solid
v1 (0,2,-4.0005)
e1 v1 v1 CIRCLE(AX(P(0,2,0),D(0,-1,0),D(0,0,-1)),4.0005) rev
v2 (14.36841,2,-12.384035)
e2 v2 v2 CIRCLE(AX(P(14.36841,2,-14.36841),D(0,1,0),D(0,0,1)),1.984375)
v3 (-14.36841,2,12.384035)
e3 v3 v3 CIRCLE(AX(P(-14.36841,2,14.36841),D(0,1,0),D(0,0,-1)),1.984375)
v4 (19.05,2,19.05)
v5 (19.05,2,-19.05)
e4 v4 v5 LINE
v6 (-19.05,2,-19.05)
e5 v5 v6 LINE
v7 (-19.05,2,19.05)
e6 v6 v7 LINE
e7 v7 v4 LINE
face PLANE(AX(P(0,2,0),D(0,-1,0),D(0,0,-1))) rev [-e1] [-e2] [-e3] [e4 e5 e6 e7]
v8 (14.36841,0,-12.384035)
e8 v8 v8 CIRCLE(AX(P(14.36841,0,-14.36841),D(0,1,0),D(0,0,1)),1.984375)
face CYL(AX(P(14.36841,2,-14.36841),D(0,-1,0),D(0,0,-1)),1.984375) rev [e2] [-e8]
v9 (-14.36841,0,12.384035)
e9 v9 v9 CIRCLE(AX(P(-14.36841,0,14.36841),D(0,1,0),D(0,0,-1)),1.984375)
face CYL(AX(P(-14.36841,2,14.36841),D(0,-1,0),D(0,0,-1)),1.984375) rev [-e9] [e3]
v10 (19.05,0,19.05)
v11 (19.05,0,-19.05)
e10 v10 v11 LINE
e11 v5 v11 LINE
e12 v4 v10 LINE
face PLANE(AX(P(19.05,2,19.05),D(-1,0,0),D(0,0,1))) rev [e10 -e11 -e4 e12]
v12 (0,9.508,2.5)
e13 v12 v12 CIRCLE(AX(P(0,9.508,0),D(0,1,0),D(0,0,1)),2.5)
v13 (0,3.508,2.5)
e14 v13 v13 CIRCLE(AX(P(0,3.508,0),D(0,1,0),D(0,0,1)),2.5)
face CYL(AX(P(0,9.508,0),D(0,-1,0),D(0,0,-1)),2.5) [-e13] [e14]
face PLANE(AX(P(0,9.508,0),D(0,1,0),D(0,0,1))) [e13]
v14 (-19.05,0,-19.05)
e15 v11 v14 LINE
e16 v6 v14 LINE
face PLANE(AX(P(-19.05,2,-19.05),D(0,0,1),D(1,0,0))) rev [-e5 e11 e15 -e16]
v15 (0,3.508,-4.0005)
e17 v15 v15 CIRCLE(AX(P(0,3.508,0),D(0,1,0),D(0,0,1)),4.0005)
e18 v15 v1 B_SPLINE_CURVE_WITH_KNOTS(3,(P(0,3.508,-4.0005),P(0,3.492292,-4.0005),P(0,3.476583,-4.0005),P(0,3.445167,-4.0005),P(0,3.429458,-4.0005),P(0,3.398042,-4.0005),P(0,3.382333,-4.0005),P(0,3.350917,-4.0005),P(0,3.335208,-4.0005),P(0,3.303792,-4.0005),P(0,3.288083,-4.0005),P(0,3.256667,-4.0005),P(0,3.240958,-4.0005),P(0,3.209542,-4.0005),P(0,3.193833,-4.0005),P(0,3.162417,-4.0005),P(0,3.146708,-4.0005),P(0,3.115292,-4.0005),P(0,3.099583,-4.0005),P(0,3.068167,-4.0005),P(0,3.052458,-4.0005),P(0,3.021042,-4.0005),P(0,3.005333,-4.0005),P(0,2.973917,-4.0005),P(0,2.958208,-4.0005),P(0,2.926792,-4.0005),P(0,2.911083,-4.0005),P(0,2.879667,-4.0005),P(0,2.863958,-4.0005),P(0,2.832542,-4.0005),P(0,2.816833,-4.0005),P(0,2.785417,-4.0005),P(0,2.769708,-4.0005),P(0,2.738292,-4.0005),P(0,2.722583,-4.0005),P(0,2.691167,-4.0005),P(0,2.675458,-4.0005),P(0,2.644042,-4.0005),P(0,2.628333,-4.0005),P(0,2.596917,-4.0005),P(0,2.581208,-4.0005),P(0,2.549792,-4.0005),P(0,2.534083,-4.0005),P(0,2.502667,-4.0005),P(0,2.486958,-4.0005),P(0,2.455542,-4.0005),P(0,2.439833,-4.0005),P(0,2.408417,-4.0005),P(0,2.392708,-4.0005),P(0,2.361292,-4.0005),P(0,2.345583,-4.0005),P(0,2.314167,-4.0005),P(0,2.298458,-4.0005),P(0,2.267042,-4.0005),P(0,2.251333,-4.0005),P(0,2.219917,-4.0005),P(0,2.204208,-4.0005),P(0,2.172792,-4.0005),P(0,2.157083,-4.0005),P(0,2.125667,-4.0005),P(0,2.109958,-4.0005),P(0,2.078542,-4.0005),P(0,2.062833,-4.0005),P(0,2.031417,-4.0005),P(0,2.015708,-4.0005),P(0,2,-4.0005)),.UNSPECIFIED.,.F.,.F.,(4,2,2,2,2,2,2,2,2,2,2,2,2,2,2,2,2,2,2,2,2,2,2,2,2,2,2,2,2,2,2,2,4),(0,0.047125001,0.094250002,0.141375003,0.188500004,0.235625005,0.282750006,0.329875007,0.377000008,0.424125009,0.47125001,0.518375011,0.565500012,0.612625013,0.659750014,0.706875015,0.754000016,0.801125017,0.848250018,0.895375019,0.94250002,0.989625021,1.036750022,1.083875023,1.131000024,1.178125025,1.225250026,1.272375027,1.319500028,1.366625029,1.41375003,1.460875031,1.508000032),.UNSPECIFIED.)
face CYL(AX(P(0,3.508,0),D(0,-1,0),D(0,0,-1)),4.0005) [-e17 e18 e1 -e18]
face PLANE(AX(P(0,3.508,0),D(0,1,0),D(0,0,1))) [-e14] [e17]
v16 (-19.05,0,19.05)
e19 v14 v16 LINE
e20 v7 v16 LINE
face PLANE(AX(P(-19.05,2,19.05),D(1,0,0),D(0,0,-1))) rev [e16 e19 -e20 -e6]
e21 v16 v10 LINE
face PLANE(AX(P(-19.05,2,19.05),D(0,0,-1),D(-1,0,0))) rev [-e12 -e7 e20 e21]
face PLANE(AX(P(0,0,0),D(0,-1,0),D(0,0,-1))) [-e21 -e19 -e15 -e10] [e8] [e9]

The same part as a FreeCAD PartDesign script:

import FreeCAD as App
import Part
import Sketcher

V = App.Vector


def add_polygon(sketch, points):
    """Adds a closed chain of lines whose ends are joined by coincident constraints."""
    first, n = sketch.GeometryCount, len(points)
    for a, b in zip(points, points[1:] + points[:1]):
        sketch.addGeometry(Part.LineSegment(App.Vector(*a, 0), App.Vector(*b, 0)), False)
    for i in range(n):
        sketch.addConstraint(Sketcher.Constraint("Coincident", first + i, 2, first + (i + 1) % n, 1))

doc = App.newDocument("Part")
params = doc.addObject("Spreadsheet::Sheet", "Params")
for row, (alias, value) in enumerate([
    ("sketch1_width", "38.1 mm"),
    ("pad1_length", "2 mm"),
    ("pad2_length", "1.508 mm"),
    ("sketch3_diameter", "5 mm"),
    ("pad3_length", "6 mm"),
], start=1):
    params.set(f"A{row}", alias)
    params.set(f"B{row}", "=" + value)
    params.setAlias(f"B{row}", alias)

body = doc.addObject("PartDesign::Body", "Body")

sketch1 = body.newObject("Sketcher::SketchObject", "Sketch")
sketch1.AttachmentSupport = (doc.getObject("XZ_Plane"), [""])
sketch1.MapMode = "FlatFace"
add_polygon(sketch1, [(-19.1, -19.1), (-19.1, 19.1), (19.1, 19.1), (19.1, -19.1)])
sketch1.addGeometry(Part.Circle(V(-14.4, 14.4, 0), V(0, 0, 1), 2), False)
sketch1.addGeometry(Part.Circle(V(14.4, -14.4, 0), V(0, 0, 1), 2), False)
sketch1.addConstraint([
    Sketcher.Constraint("Vertical", 0),
    Sketcher.Constraint("Horizontal", 1),
    Sketcher.Constraint("Vertical", 2),
    Sketcher.Constraint("Horizontal", 3),
    Sketcher.Constraint("Equal", 4, 5),
    Sketcher.Constraint("Symmetric", 4, 3, 5, 3, -1, 1),
    Sketcher.Constraint("Symmetric", 0, 2, 2, 2, -1, 1),
    Sketcher.Constraint("Equal", 3, 0),
    Sketcher.Constraint("DistanceX", 1, 1, 1, 2, 38.1),
    Sketcher.Constraint("Diameter", 4, 3.96875),
    Sketcher.Constraint("DistanceX", 4, 3, -1, 1, 14.36841),
    Sketcher.Constraint("DistanceY", -1, 1, 4, 3, 14.36841),
])
sketch1.setExpression("Constraints[12]", "Params.sketch1_width")
pad1 = body.newObject("PartDesign::Pad", "Pad")
pad1.Profile = sketch1
pad1.setExpression("Length", "Params.pad1_length")
pad1.Reversed = True

sketch2 = body.newObject("Sketcher::SketchObject", "Sketch001")
sketch2.AttachmentSupport = (doc.getObject("XZ_Plane"), [""])
sketch2.MapMode = "FlatFace"
sketch2.AttachmentOffset = App.Placement(V(0, 0, -2), App.Rotation())
sketch2.addGeometry(Part.Circle(V(0, 0, 0), V(0, 0, 1), 4), False)
sketch2.addConstraint([
    Sketcher.Constraint("Coincident", 0, 3, -1, 1),
    Sketcher.Constraint("Diameter", 0, 8.001),
])
pad2 = body.newObject("PartDesign::Pad", "Pad001")
pad2.Profile = sketch2
pad2.setExpression("Length", "Params.pad2_length")
pad2.Reversed = True

sketch3 = body.newObject("Sketcher::SketchObject", "Sketch002")
sketch3.AttachmentSupport = (doc.getObject("XZ_Plane"), [""])
sketch3.MapMode = "FlatFace"
sketch3.AttachmentOffset = App.Placement(V(0, 0, -3.508), App.Rotation())
sketch3.addGeometry(Part.Circle(V(0, 0, 0), V(0, 0, 1), 2.5), False)
sketch3.addConstraint([
    Sketcher.Constraint("Coincident", 0, 3, -1, 1),
    Sketcher.Constraint("Diameter", 0, 5.0),
])
sketch3.setExpression("Constraints[1]", "Params.sketch3_diameter")
pad3 = body.newObject("PartDesign::Pad", "Pad002")
pad3.Profile = sketch3
pad3.setExpression("Length", "Params.pad3_length")
pad3.Reversed = True

doc.recompute()
